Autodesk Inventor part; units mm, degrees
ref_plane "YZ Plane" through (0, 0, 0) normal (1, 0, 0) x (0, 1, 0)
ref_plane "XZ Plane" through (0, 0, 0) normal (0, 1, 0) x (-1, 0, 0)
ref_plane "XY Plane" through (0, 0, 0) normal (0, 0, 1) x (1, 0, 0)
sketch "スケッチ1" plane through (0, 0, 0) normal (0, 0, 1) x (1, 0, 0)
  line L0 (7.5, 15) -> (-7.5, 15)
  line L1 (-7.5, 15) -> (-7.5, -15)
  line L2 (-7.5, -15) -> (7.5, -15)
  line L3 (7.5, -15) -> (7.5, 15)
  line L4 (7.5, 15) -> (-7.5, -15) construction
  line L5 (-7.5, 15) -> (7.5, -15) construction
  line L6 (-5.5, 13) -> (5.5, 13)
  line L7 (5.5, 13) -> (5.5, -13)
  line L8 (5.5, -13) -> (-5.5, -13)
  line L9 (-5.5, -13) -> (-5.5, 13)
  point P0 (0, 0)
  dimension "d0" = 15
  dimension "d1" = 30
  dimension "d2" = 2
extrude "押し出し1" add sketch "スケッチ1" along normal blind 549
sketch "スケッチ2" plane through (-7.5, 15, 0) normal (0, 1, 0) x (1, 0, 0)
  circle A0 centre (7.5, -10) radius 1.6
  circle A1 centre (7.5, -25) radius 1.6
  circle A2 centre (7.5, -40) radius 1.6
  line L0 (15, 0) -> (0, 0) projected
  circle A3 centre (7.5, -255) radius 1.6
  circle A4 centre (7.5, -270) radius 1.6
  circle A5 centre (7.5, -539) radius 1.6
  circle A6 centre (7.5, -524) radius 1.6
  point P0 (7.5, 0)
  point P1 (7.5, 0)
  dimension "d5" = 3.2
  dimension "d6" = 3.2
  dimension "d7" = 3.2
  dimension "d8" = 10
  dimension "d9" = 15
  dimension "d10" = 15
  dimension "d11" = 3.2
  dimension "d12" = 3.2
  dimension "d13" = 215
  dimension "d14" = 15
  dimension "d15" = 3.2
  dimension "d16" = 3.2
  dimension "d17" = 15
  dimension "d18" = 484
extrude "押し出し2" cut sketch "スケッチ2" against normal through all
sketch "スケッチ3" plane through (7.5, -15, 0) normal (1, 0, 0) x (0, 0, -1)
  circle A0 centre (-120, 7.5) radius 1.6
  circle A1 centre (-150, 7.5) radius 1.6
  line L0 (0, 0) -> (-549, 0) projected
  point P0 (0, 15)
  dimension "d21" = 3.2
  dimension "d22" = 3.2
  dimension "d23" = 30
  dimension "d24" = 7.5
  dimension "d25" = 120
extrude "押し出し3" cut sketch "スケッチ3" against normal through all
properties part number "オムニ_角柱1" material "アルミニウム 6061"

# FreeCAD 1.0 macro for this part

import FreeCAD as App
import Part
import Sketcher
from FreeCAD import Vector


def add_polygon(sketch, points):
    """Adds a closed chain of lines whose ends are joined by coincident constraints."""
    first, n = sketch.GeometryCount, len(points)
    for a, b in zip(points, points[1:] + points[:1]):
        sketch.addGeometry(Part.LineSegment(App.Vector(*a, 0), App.Vector(*b, 0)), False)
    for i in range(n):
        sketch.addConstraint(Sketcher.Constraint("Coincident", first + i, 2, first + (i + 1) % n, 1))

doc = App.newDocument("Part")
body = doc.addObject("PartDesign::Body", "Body")

# Sketch on XY plane
sketch1 = body.newObject("Sketcher::SketchObject", "Sketch")
sketch1.AttachmentSupport = (doc.getObject("XY_Plane"), [""])
sketch1.MapMode = "FlatFace"
add_polygon(sketch1, [(8, -15), (8, 15), (-8, 15), (-8, -15)])  # lines 0-3
add_polygon(sketch1, [(-6, -13), (-6, 13), (6, 13), (6, -13)])  # lines 4-7
sketch1.addConstraint([
    Sketcher.Constraint("Vertical", 0),
    Sketcher.Constraint("Horizontal", 1),
    Sketcher.Constraint("Vertical", 2),
    Sketcher.Constraint("Horizontal", 3),
    Sketcher.Constraint("Vertical", 4),
    Sketcher.Constraint("Horizontal", 5),
    Sketcher.Constraint("Vertical", 6),
    Sketcher.Constraint("Horizontal", 7),
    Sketcher.Constraint("Symmetric", 0, 2, 2, 2, -1, 1),
    Sketcher.Constraint("Symmetric", 4, 2, 6, 2, -1, 1),
    Sketcher.Constraint("DistanceX", 1, 2, 1, 1, 15.0),
    Sketcher.Constraint("DistanceY", 0, 1, 0, 2, 30.0),
    Sketcher.Constraint("DistanceX", 1, 2, 4, 2, 2.0),
    Sketcher.Constraint("DistanceY", 4, 2, 1, 2, 2.0),
])
pad1 = body.newObject("PartDesign::Pad", "Pad")
pad1.Profile = sketch1
pad1.Length = 549

# Sketch on XZ plane
sketch2 = body.newObject("Sketcher::SketchObject", "Sketch001")
sketch2.AttachmentSupport = (doc.getObject("XZ_Plane"), [""])
sketch2.MapMode = "FlatFace"
sketch2.AttachmentOffset = App.Placement(Vector(0, 0, -15), App.Rotation())
sketch2.addGeometry([
    Part.Circle(Vector(0, 10, 0), Vector(0, 0, 1), 1.6),  # 0
    Part.Circle(Vector(0, 25, 0), Vector(0, 0, 1), 1.6),  # 1
    Part.Circle(Vector(0, 40, 0), Vector(0, 0, 1), 1.6),  # 2
    Part.Circle(Vector(0, 255, 0), Vector(0, 0, 1), 1.6),  # 3
    Part.Circle(Vector(0, 270, 0), Vector(0, 0, 1), 1.6),  # 4
    Part.Circle(Vector(0, 539, 0), Vector(0, 0, 1), 1.6),  # 5
    Part.Circle(Vector(0, 524, 0), Vector(0, 0, 1), 1.6),  # 6
], False)
sketch2.addConstraint([
    Sketcher.Constraint("Equal", 0, 1),
    Sketcher.Constraint("Equal", 1, 2),
    Sketcher.Constraint("Equal", 2, 3),
    Sketcher.Constraint("Equal", 3, 4),
    Sketcher.Constraint("Equal", 4, 5),
    Sketcher.Constraint("Equal", 5, 6),
    Sketcher.Constraint("PointOnObject", 0, 3, -2),
    Sketcher.Constraint("PointOnObject", 1, 3, -2),
    Sketcher.Constraint("PointOnObject", 2, 3, -2),
    Sketcher.Constraint("PointOnObject", 3, 3, -2),
    Sketcher.Constraint("PointOnObject", 4, 3, -2),
    Sketcher.Constraint("PointOnObject", 5, 3, -2),
    Sketcher.Constraint("PointOnObject", 6, 3, -2),
    Sketcher.Constraint("Diameter", 0, 3.2),
    Sketcher.Constraint("DistanceY", -1, 1, 0, 3, 10.0),
    Sketcher.Constraint("DistanceY", 0, 3, 1, 3, 15.0),
    Sketcher.Constraint("DistanceY", 1, 3, 2, 3, 15.0),
    Sketcher.Constraint("DistanceY", 2, 3, 3, 3, 215.0),
    Sketcher.Constraint("DistanceY", 3, 3, 4, 3, 15.0),
    Sketcher.Constraint("DistanceY", 6, 3, 5, 3, 15.0),
    Sketcher.Constraint("DistanceY", 2, 3, 6, 3, 484.0),
])
pocket1 = body.newObject("PartDesign::Pocket", "Pocket")
pocket1.Profile = sketch2
pocket1.Type = "ThroughAll"
pocket1.Reversed = True

# Sketch on YZ plane
sketch3 = body.newObject("Sketcher::SketchObject", "Sketch002")
sketch3.AttachmentSupport = (doc.getObject("YZ_Plane"), [""])
sketch3.MapMode = "FlatFace"
sketch3.AttachmentOffset = App.Placement(Vector(0, 0, 7.5), App.Rotation())
sketch3.addGeometry([
    Part.Circle(Vector(-7.5, 120, 0), Vector(0, 0, 1), 1.6),
    Part.Circle(Vector(-7.5, 150, 0), Vector(0, 0, 1), 1.6),
], False)
sketch3.addConstraint([
    Sketcher.Constraint("Equal", 0, 1),
    Sketcher.Constraint("Vertical", 0, 3, 1, 3),
    Sketcher.Constraint("Diameter", 0, 3.2),
    Sketcher.Constraint("DistanceY", -1, 1, 0, 3, 120.0),
    Sketcher.Constraint("DistanceY", 0, 3, 1, 3, 30.0),
    Sketcher.Constraint("DistanceX", 0, 3, -1, 1, 7.5),
])
pocket2 = body.newObject("PartDesign::Pocket", "Pocket001")
pocket2.Profile = sketch3
pocket2.Type = "ThroughAll"

doc.recompute()
